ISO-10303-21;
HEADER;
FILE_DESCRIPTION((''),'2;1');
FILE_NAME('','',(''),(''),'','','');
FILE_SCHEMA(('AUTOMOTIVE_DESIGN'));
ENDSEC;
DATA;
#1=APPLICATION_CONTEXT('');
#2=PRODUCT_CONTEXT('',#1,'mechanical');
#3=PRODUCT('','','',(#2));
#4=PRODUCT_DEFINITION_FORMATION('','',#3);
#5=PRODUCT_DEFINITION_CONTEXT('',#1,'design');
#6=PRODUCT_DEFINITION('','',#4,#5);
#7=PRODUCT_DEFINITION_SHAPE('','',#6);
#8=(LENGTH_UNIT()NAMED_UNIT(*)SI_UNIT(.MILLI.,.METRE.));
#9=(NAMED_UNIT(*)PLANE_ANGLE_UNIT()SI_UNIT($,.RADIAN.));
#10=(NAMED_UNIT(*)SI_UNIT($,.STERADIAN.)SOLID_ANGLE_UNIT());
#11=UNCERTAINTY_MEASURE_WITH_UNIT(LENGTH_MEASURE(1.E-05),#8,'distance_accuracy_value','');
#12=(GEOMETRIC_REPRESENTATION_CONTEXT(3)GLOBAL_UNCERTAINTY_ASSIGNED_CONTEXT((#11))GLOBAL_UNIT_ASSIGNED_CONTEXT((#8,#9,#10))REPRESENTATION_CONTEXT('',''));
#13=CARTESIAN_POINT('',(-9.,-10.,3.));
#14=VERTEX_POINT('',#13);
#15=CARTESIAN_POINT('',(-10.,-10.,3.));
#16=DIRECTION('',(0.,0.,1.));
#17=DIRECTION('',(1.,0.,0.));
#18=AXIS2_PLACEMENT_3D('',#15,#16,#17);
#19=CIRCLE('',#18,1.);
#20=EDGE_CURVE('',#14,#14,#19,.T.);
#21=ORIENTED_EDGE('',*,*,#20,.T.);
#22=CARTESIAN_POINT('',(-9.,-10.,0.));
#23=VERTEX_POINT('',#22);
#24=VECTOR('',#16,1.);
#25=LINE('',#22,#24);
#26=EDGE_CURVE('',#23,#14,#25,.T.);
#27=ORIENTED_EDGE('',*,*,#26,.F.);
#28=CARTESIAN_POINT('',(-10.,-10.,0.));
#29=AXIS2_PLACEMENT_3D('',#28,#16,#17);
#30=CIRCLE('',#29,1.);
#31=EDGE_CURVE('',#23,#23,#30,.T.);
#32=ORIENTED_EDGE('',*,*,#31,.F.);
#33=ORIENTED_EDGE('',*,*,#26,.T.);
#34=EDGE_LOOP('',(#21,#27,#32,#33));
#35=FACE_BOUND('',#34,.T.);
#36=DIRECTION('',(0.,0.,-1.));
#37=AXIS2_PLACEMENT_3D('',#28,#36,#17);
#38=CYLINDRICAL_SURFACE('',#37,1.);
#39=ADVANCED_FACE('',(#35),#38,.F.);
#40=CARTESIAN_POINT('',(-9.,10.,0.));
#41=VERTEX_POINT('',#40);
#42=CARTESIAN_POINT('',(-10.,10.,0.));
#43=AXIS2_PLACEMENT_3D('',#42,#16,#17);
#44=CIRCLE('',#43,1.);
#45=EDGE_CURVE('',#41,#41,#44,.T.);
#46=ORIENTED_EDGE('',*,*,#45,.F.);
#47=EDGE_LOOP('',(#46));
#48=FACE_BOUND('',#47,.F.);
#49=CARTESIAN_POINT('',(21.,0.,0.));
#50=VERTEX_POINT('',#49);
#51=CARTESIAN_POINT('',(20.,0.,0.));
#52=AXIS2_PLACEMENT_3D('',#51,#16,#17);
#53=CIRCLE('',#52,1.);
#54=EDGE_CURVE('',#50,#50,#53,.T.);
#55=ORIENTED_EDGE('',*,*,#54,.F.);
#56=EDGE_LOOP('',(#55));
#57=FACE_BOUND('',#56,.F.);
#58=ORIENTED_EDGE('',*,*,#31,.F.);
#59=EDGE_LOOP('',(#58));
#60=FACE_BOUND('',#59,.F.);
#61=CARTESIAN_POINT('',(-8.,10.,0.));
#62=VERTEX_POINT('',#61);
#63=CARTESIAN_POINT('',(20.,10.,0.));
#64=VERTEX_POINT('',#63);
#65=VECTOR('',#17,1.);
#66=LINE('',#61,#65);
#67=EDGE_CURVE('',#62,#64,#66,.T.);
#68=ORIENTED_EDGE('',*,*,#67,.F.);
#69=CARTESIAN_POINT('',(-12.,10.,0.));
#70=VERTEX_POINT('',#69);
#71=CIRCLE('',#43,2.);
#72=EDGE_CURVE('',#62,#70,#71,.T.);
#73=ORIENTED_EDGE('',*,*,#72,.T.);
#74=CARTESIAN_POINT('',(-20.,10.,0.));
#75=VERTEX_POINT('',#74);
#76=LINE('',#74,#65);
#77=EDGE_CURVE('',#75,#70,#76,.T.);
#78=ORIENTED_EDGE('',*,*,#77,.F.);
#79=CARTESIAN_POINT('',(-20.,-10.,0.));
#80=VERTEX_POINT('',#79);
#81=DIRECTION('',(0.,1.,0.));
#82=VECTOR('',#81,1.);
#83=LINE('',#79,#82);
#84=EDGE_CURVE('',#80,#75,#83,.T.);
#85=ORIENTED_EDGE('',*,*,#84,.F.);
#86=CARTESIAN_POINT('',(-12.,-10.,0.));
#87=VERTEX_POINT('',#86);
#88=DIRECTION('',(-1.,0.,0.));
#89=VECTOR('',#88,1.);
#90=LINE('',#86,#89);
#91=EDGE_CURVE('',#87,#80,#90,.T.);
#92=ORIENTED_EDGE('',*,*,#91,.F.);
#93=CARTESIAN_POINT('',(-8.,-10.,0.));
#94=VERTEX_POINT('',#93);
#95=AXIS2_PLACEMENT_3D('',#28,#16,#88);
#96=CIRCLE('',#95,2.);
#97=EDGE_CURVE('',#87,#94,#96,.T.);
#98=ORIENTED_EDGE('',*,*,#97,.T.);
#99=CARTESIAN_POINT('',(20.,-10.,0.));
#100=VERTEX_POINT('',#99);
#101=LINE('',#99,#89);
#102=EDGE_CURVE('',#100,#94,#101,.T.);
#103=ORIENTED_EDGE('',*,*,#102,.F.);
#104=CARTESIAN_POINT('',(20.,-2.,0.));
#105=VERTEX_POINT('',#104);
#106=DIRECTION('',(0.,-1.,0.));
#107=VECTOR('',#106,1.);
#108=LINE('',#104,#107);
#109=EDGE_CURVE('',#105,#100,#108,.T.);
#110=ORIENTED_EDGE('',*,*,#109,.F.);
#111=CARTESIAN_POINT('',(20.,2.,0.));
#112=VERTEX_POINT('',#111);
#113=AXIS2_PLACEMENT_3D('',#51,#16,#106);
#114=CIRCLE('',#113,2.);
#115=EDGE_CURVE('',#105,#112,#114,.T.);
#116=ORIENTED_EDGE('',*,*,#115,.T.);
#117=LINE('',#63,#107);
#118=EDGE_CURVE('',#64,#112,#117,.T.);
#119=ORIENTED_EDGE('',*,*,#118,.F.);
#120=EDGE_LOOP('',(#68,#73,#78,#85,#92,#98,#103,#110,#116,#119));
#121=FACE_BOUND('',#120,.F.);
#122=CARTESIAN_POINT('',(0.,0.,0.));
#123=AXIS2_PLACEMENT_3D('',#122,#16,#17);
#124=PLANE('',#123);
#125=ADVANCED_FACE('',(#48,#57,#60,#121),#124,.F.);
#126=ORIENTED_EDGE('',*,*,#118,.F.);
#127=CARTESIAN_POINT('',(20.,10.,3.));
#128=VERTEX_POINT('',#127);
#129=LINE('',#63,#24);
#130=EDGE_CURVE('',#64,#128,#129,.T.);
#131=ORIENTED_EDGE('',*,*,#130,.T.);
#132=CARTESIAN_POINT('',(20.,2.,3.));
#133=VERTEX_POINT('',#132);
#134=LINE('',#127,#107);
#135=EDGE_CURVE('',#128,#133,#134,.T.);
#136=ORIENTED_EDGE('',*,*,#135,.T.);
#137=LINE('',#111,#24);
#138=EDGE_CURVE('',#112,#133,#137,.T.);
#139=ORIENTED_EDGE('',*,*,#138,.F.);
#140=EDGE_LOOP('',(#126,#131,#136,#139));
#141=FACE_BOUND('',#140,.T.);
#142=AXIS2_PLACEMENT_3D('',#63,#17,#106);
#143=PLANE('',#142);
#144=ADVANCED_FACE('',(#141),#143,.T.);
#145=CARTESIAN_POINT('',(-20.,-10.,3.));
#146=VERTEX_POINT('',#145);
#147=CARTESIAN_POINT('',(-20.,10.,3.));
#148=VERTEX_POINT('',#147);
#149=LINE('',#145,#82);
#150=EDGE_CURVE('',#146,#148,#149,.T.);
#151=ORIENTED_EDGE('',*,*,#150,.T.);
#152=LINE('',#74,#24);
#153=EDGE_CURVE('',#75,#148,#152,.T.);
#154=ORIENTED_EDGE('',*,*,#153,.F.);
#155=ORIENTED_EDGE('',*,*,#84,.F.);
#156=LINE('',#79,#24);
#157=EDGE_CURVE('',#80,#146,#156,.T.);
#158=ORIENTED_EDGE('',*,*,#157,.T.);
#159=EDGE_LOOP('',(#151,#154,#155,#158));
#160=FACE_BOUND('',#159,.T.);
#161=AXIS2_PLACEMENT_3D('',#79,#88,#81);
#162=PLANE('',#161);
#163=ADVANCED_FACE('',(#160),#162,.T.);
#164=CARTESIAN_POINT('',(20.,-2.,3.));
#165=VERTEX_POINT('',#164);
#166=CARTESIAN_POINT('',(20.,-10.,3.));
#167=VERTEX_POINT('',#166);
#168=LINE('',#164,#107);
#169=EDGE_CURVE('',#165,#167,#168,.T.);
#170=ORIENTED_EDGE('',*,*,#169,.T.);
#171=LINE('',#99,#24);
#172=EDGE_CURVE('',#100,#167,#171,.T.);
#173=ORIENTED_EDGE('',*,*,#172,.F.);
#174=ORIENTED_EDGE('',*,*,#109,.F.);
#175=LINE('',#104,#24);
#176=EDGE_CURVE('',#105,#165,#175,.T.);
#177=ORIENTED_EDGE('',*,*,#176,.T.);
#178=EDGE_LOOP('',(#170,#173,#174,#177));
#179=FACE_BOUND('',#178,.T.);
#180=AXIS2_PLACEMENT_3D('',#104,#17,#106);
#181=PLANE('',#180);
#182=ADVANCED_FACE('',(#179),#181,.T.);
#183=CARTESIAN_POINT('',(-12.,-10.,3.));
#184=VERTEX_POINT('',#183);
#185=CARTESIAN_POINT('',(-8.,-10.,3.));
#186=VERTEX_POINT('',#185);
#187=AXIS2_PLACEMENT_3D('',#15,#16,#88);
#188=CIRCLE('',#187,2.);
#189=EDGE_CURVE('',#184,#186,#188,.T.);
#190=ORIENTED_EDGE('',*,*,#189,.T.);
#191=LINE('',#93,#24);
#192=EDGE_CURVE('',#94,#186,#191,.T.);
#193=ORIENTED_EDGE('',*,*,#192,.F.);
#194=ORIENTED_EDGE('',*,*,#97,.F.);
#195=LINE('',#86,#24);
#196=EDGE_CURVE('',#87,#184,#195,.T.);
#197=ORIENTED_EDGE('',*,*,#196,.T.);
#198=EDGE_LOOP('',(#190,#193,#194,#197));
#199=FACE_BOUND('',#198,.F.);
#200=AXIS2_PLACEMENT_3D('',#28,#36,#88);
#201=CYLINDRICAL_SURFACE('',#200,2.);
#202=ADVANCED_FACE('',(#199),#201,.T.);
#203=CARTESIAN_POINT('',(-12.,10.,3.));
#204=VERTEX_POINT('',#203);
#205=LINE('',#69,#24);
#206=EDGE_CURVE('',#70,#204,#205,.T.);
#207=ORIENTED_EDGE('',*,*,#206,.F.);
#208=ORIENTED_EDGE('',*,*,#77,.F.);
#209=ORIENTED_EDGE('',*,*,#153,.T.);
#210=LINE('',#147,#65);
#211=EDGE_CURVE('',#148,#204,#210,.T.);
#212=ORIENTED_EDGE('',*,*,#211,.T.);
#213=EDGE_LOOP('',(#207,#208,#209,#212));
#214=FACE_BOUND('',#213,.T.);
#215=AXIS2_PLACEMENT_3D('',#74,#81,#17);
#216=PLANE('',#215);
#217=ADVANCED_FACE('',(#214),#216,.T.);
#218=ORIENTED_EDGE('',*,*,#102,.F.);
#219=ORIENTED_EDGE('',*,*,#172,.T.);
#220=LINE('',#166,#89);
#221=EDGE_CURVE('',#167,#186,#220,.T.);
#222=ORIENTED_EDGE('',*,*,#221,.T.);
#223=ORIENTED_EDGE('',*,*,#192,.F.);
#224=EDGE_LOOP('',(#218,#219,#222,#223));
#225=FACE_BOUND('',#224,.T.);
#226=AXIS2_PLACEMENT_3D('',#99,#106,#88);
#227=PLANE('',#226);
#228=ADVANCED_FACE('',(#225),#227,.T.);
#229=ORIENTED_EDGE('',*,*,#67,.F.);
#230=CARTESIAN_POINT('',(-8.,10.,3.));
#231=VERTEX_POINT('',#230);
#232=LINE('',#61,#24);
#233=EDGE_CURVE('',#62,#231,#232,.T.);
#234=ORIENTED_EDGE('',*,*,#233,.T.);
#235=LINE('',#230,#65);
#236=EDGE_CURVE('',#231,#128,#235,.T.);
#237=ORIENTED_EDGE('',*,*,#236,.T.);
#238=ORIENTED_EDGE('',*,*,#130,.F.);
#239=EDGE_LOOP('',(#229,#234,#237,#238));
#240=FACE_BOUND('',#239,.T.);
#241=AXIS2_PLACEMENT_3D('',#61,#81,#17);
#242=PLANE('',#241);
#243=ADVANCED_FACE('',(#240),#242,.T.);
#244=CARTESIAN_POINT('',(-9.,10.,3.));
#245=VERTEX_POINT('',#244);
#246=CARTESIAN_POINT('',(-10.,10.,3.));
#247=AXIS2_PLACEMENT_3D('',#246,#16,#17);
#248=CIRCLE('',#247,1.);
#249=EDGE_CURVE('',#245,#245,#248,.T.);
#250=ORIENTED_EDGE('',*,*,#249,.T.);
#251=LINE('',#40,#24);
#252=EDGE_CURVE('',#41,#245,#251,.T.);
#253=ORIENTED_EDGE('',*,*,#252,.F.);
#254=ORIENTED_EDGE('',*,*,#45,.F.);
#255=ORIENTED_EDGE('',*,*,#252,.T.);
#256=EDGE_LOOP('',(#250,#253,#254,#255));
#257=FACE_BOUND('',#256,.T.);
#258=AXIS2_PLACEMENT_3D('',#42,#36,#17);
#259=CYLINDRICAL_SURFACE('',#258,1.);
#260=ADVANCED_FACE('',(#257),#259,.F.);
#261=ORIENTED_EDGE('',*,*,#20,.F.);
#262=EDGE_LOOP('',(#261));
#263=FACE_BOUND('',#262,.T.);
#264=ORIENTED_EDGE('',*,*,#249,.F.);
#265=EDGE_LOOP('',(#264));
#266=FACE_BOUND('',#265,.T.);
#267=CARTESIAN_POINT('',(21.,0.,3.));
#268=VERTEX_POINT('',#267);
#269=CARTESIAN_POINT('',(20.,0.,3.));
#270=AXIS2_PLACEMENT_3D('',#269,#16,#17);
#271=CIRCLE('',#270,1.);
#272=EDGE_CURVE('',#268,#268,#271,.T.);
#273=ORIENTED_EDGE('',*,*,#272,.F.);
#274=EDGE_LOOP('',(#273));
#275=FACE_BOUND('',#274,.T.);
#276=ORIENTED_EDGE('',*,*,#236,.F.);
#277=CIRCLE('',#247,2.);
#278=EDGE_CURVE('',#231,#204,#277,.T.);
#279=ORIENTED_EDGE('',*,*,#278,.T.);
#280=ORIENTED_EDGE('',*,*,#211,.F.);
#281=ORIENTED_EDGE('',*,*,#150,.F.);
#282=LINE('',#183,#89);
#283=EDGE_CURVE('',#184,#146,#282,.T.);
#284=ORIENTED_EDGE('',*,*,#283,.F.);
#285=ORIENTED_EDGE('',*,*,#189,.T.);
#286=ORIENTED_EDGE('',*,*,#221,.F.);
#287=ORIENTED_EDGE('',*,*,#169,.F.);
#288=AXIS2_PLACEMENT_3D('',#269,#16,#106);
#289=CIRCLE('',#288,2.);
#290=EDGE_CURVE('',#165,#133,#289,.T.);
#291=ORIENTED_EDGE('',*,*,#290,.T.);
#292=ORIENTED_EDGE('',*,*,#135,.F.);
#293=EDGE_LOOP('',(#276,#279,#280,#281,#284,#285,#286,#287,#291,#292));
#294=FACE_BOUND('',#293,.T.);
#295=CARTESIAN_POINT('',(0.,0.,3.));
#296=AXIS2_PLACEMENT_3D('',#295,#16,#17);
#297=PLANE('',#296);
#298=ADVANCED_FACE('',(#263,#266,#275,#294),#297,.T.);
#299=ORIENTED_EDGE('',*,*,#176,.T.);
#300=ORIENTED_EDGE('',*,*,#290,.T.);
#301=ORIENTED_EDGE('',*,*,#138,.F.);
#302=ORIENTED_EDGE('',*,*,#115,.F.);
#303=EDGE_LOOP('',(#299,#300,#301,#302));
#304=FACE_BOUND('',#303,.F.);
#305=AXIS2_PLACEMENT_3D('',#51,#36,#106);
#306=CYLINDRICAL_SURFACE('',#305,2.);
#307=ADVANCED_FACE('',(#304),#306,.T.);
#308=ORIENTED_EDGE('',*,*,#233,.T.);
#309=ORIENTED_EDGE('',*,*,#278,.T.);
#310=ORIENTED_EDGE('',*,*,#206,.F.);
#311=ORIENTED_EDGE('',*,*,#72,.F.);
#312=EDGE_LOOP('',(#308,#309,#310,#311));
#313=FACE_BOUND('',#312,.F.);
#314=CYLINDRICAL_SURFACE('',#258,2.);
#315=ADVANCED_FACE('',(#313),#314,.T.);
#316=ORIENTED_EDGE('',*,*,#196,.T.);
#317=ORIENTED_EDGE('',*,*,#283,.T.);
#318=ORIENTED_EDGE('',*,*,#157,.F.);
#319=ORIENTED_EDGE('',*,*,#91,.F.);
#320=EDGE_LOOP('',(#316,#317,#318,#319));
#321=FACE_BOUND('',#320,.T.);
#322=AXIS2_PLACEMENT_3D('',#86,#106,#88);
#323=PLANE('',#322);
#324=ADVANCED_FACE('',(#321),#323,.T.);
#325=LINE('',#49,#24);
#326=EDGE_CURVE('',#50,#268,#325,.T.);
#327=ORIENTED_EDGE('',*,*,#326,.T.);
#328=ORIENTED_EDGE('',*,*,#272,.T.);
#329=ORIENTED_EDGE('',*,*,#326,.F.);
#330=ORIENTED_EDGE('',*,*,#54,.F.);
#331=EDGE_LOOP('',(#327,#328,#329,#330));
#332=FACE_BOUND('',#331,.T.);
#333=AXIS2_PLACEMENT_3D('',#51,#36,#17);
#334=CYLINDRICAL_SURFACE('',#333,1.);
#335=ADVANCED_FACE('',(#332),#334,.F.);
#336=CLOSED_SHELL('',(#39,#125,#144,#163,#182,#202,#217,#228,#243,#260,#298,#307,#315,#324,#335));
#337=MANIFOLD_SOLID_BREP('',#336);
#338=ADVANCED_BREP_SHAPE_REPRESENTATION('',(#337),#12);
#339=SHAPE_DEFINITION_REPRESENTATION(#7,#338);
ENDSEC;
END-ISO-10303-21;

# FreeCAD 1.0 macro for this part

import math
import FreeCAD as App
import Part
import Sketcher

V = App.Vector
Q = App.Units.Quantity

doc = App.newDocument("Part")
params = doc.addObject("Spreadsheet::Sheet", "Params")
for row, (alias, value) in enumerate([
    ("sketch1_diameter", "2 mm"),
    ("sketch1_radius", "2 mm"),
    ("sketch1_height", "20 mm"),
    ("pad1_length", "3 mm"),
], start=1):
    params.set(f"A{row}", alias)
    params.set(f"B{row}", "=" + value)
    params.setAlias(f"B{row}", alias)

body = doc.addObject("PartDesign::Body", "Body")

# Sketch on XY plane
sketch1 = body.newObject("Sketcher::SketchObject", "Sketch")
sketch1.AttachmentSupport = (doc.getObject("XY_Plane"), [""])
sketch1.MapMode = "FlatFace"
sketch1.addGeometry([
    Part.LineSegment(V(-20, 10, 0), V(-20, -10, 0)),  # 0
    Part.LineSegment(V(-20, -10, 0), V(-12, -10, 0)),  # 1
    Part.ArcOfCircle(Part.Circle(V(-10, -10, 0), V(0, 0, 1), 2), math.radians(180), math.radians(360)),  # 2
    Part.LineSegment(V(-8, -10, 0), V(20, -10, 0)),  # 3
    Part.LineSegment(V(20, -10, 0), V(20, -2, 0)),  # 4
    Part.ArcOfCircle(Part.Circle(V(20, 0, 0), V(0, 0, 1), 2), math.radians(-90), math.radians(90)),  # 5
    Part.LineSegment(V(20, 2, 0), V(20, 10, 0)),  # 6
    Part.LineSegment(V(20, 10, 0), V(-8, 10, 0)),  # 7
    Part.ArcOfCircle(Part.Circle(V(-10, 10, 0), V(0, 0, 1), 2), math.radians(0), math.radians(180)),  # 8
    Part.LineSegment(V(-12, 10, 0), V(-20, 10, 0)),  # 9
    Part.Circle(V(-10, -10, 0), V(0, 0, 1), 1),  # 10
    Part.Circle(V(-10, 10, 0), V(0, 0, 1), 1),  # 11
    Part.Circle(V(20, 0, 0), V(0, 0, 1), 1),  # 12
], False)
sketch1.addConstraint([
    Sketcher.Constraint("Coincident", 0, 2, 1, 1),
    Sketcher.Constraint("Coincident", 1, 2, 2, 1),
    Sketcher.Constraint("Coincident", 2, 2, 3, 1),
    Sketcher.Constraint("Coincident", 3, 2, 4, 1),
    Sketcher.Constraint("Coincident", 4, 2, 5, 1),
    Sketcher.Constraint("Coincident", 5, 2, 6, 1),
    Sketcher.Constraint("Coincident", 6, 2, 7, 1),
    Sketcher.Constraint("Coincident", 7, 2, 8, 1),
    Sketcher.Constraint("Coincident", 8, 2, 9, 1),
    Sketcher.Constraint("Coincident", 9, 2, 0, 1),
    Sketcher.Constraint("Vertical", 0),
    Sketcher.Constraint("Horizontal", 1),
    Sketcher.Constraint("Horizontal", 3),
    Sketcher.Constraint("Vertical", 4),
    Sketcher.Constraint("Vertical", 6),
    Sketcher.Constraint("Horizontal", 7),
    Sketcher.Constraint("Horizontal", 9),
    Sketcher.Constraint("Coincident", 10, 3, 2, 3),
    Sketcher.Constraint("Coincident", 11, 3, 8, 3),
    Sketcher.Constraint("Coincident", 12, 3, 5, 3),
    Sketcher.Constraint("Equal", 2, 5),
    Sketcher.Constraint("Equal", 5, 8),
    Sketcher.Constraint("Equal", 10, 11),
    Sketcher.Constraint("Equal", 11, 12),
    Sketcher.Constraint("Symmetric", 0, 2, 6, 2, -1, 1),
    Sketcher.Constraint("Symmetric", 3, 2, 9, 2, -1, 1),
    Sketcher.Constraint("Symmetric", 2, 3, 8, 3, -1),
    Sketcher.Constraint("PointOnObject", 5, 3, -1),
    Sketcher.Constraint("Horizontal", 10, 3, 0, 2),
    Sketcher.Constraint("Horizontal", 1, 2, 2, 2),
    Sketcher.Constraint("Vertical", 12, 3, 3, 2),
    Sketcher.Constraint("Equal", 9, 4),
    Sketcher.Constraint("Diameter", 10, Q("2 mm")),
    Sketcher.Constraint("Radius", 2, Q("2 mm")),
    Sketcher.Constraint("DistanceY", 0, 2, 0, 1, Q("20 mm")),
    Sketcher.Constraint("DistanceX", 2, 3, -1, 1, Q("10 mm")),
])
sketch1.setExpression("Constraints[32]", "Params.sketch1_diameter")
sketch1.setExpression("Constraints[33]", "Params.sketch1_radius")
sketch1.setExpression("Constraints[34]", "Params.sketch1_height")
pad1 = body.newObject("PartDesign::Pad", "Pad")
pad1.Profile = sketch1
pad1.setExpression("Length", "Params.pad1_length")

doc.recompute()
